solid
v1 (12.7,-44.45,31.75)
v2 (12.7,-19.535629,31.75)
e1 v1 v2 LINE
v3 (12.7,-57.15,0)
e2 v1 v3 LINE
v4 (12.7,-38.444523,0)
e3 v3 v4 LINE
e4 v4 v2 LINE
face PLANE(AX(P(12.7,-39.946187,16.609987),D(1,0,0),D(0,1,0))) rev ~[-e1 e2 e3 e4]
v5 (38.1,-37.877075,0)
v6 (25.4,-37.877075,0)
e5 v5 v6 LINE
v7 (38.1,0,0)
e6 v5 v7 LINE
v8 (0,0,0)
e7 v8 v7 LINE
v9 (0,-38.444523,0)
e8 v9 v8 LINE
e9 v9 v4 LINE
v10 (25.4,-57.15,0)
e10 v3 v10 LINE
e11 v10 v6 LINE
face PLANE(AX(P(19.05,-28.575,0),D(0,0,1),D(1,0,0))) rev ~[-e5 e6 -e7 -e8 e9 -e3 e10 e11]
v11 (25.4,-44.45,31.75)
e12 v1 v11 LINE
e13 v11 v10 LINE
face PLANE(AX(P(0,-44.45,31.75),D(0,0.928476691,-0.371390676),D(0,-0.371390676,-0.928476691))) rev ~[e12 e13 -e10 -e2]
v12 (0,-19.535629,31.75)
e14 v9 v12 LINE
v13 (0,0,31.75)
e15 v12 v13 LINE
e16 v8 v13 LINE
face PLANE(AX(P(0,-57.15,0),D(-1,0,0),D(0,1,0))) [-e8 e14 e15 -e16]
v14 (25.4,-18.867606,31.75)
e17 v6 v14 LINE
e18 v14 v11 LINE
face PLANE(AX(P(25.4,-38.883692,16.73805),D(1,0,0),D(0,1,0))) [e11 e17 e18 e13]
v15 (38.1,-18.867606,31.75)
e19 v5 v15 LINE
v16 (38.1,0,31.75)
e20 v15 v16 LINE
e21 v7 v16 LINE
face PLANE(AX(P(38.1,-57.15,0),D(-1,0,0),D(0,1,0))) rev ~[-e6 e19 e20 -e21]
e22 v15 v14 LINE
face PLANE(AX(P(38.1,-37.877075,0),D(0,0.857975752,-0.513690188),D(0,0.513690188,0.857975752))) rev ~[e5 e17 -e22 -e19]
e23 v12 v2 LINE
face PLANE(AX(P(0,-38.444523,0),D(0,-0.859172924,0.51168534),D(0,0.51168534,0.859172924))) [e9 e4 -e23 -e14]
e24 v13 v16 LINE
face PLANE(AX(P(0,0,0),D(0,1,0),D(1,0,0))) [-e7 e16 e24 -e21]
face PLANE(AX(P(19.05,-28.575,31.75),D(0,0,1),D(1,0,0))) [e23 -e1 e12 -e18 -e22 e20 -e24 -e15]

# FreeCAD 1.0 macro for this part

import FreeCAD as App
import Part
import Sketcher
Q = App.Units.Quantity

doc = App.newDocument("Part")
body = doc.addObject("PartDesign::Body", "Body")

# Sketch on XY plane
sketch1 = body.newObject("Sketcher::SketchObject", "Sketch")
sketch1.AttachmentSupport = (doc.getObject("XY_Plane"), [""])
sketch1.MapMode = "FlatFace"
sketch1.addGeometry([
    Part.LineSegment(App.Vector(0, 0, 0), App.Vector(0, -57, 0)),
    Part.LineSegment(App.Vector(0, -57, 0), App.Vector(38, -57, 0)),
    Part.LineSegment(App.Vector(38, -57, 0), App.Vector(38, 0, 0)),
    Part.LineSegment(App.Vector(38, 0, 0), App.Vector(0, 0, 0)),
], False)
sketch1.addConstraint([
    Sketcher.Constraint("Coincident", 0, 2, 1, 1),
    Sketcher.Constraint("Coincident", 1, 2, 2, 1),
    Sketcher.Constraint("Coincident", 2, 2, 3, 1),
    Sketcher.Constraint("Coincident", 3, 2, 0, 1),
    Sketcher.Constraint("Vertical", 0),
    Sketcher.Constraint("Horizontal", 1),
    Sketcher.Constraint("Vertical", 2),
    Sketcher.Constraint("Horizontal", 3),
    Sketcher.Constraint("Coincident", 3, 2, -1, 1),
    Sketcher.Constraint("DistanceX", 1, 1, 1, 2, Q("1.5 in")),
    Sketcher.Constraint("DistanceY", 0, 2, 0, 1, Q("2.25 in")),
])
pad1 = body.newObject("PartDesign::Pad", "Pad")
pad1.Profile = sketch1
pad1.Length = Q("1.25 in")

# Sketch on YZ plane
sketch2 = body.newObject("Sketcher::SketchObject", "Sketch001")
sketch2.AttachmentSupport = (doc.getObject("YZ_Plane"), [""])
sketch2.MapMode = "FlatFace"
sketch2.addGeometry([
    Part.LineSegment(App.Vector(-57, 32, 0), App.Vector(-44, 32, 0)),
    Part.LineSegment(App.Vector(-44, 32, 0), App.Vector(-57, 0, 0)),
    Part.LineSegment(App.Vector(-57, 0, 0), App.Vector(-57, 32, 0)),
], False)
sketch2.addConstraint([
    Sketcher.Constraint("Coincident", 0, 2, 1, 1),
    Sketcher.Constraint("Coincident", 1, 2, 2, 1),
    Sketcher.Constraint("Coincident", 2, 2, 0, 1),
    Sketcher.Constraint("Horizontal", 0),
    Sketcher.Constraint("Vertical", 2),
    Sketcher.Constraint("PointOnObject", 1, 2, -1),
    Sketcher.Constraint("DistanceX", 0, 1, 0, 2, Q("0.5 in")),
    Sketcher.Constraint("DistanceY", 2, 1, 2, 2, Q("1.25 in")),
    Sketcher.Constraint("DistanceX", 0, 2, -1, 1, Q("1.75 in")),
])
pocket1 = body.newObject("PartDesign::Pocket", "Pocket")
pocket1.Profile = sketch2
pocket1.Length = Q("2 in")
pocket1.Reversed = True

# Sketch on YZ plane
sketch3 = body.newObject("Sketcher::SketchObject", "Sketch002")
sketch3.AttachmentSupport = (doc.getObject("YZ_Plane"), [""])
sketch3.MapMode = "FlatFace"
sketch3.addGeometry([
    Part.LineSegment(App.Vector(-38, 0, 0), App.Vector(-19, 32, 0)),
    Part.LineSegment(App.Vector(-19, 32, 0), App.Vector(-45, 32, 0)),
    Part.LineSegment(App.Vector(-45, 32, 0), App.Vector(-59, 0, 0)),
    Part.LineSegment(App.Vector(-59, 0, 0), App.Vector(-38, 0, 0)),
], False)
sketch3.addConstraint([
    Sketcher.Constraint("Coincident", 0, 2, 1, 1),
    Sketcher.Constraint("Coincident", 1, 2, 2, 1),
    Sketcher.Constraint("Coincident", 2, 2, 3, 1),
    Sketcher.Constraint("Coincident", 3, 2, 0, 1),
    Sketcher.Constraint("Horizontal", 1),
    Sketcher.Constraint("Horizontal", 3),
    Sketcher.Constraint("PointOnObject", 2, 2, -1),
    Sketcher.Constraint("DistanceX", 3, 1, 3, 2, 20.711809),
    Sketcher.Constraint("Distance", 0, 37.150709),
    Sketcher.Constraint("DistanceX", 1, 2, 1, 1, 25.535108),
    Sketcher.Constraint("DistanceX", 0, 2, -1, 1, 19.43505),
    Sketcher.Constraint("Distance", 2, 34.929395),
])
pocket2 = body.newObject("PartDesign::Pocket", "Pocket001")
pocket2.Profile = sketch3
pocket2.Length = Q("0.5 in")
pocket2.Reversed = True

# Sketch on YZ plane
sketch4 = body.newObject("Sketcher::SketchObject", "Sketch003")
sketch4.AttachmentSupport = (doc.getObject("YZ_Plane"), [""])
sketch4.MapMode = "FlatFace"
sketch4.AttachmentOffset = App.Placement(App.Vector(0, 0, 1.5 * 25.4), App.Rotation())
sketch4.addGeometry([
    Part.LineSegment(App.Vector(-44, 32, 0), App.Vector(-57, 0, 0)),
    Part.LineSegment(App.Vector(-57, 0, 0), App.Vector(-38, 0, 0)),
    Part.LineSegment(App.Vector(-38, 0, 0), App.Vector(-19, 32, 0)),
    Part.LineSegment(App.Vector(-19, 32, 0), App.Vector(-44, 32, 0)),
], False)
sketch4.addConstraint([
    Sketcher.Constraint("Coincident", 0, 2, 1, 1),
    Sketcher.Constraint("Coincident", 1, 2, 2, 1),
    Sketcher.Constraint("Coincident", 2, 2, 3, 1),
    Sketcher.Constraint("Coincident", 3, 2, 0, 1),
    Sketcher.Constraint("Horizontal", 1),
    Sketcher.Constraint("Horizontal", 3),
    Sketcher.Constraint("PointOnObject", 0, 2, -1),
    Sketcher.Constraint("DistanceX", 0, 2, 3, 2, Q("0.5 in")),
    Sketcher.Constraint("DistanceX", 0, 2, -1, 1, Q("2.25 in")),
    Sketcher.Constraint("DistanceY", -1, 1, 2, 2, Q("1.25 in")),
    Sketcher.Constraint("DistanceX", 1, 1, 1, 2, 19.272925),
    Sketcher.Constraint("DistanceX", 3, 2, 3, 1, 25.582394),
])
pocket3 = body.newObject("PartDesign::Pocket", "Pocket002")
pocket3.Profile = sketch4
pocket3.Length = Q("0.5 in")

doc.recompute()
